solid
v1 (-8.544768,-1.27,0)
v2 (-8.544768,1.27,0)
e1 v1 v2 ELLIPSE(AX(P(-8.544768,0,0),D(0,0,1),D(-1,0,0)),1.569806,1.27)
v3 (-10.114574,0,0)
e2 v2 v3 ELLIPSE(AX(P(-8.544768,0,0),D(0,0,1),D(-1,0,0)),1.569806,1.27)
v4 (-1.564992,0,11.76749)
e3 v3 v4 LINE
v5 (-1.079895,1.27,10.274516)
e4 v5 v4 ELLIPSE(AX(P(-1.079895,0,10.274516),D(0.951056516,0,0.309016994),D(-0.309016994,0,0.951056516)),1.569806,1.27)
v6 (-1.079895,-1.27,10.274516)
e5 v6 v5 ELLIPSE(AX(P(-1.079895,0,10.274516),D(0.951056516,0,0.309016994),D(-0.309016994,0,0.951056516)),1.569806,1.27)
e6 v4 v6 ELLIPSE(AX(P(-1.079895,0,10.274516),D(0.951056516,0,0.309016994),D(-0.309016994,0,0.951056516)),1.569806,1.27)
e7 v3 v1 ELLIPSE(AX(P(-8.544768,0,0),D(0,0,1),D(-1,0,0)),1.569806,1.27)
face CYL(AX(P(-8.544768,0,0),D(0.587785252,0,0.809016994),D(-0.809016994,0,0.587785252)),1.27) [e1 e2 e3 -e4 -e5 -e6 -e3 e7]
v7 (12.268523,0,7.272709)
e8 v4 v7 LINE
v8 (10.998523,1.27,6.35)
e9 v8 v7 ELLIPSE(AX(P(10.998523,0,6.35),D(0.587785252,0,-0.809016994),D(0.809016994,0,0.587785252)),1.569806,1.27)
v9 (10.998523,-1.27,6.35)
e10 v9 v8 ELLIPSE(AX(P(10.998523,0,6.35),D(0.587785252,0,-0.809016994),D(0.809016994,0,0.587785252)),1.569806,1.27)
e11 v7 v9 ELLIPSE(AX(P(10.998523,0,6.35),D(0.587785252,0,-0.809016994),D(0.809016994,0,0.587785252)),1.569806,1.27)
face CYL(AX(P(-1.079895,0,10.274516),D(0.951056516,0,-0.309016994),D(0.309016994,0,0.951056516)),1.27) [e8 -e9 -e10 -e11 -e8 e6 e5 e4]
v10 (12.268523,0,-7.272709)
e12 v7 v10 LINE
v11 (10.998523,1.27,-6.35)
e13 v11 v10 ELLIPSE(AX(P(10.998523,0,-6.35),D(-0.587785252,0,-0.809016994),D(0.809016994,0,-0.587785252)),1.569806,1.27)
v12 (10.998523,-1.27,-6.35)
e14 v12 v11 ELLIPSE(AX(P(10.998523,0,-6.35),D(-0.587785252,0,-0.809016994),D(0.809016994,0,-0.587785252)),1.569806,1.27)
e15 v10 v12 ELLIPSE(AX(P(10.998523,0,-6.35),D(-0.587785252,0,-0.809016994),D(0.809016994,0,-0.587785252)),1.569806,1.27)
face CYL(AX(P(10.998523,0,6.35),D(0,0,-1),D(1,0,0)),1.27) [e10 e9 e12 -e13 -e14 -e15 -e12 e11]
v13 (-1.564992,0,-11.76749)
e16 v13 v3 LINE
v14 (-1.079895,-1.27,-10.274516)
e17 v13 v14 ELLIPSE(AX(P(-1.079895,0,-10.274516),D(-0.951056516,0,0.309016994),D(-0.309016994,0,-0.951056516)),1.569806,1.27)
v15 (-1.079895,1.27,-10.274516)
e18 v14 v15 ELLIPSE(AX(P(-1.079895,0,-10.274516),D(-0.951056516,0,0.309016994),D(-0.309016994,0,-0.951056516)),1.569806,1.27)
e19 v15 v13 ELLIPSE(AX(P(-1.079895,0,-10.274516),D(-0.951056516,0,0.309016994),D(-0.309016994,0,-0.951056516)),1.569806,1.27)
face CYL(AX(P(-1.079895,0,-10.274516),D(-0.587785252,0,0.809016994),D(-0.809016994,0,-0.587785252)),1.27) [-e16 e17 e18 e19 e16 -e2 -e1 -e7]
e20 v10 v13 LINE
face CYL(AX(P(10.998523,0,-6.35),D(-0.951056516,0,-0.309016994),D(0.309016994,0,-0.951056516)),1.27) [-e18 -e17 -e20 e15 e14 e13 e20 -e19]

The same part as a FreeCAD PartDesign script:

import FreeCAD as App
import Part
import Sketcher
Q = App.Units.Quantity


def add_polygon(sketch, points):
    """Adds a closed chain of lines whose ends are joined by coincident constraints."""
    first, n = sketch.GeometryCount, len(points)
    for a, b in zip(points, points[1:] + points[:1]):
        sketch.addGeometry(Part.LineSegment(App.Vector(*a, 0), App.Vector(*b, 0)), False)
    for i in range(n):
        sketch.addConstraint(Sketcher.Constraint("Coincident", first + i, 2, first + (i + 1) % n, 1))

doc = App.newDocument("Part")
body = doc.addObject("PartDesign::Body", "Body")

# Sketch on XY plane
sketch1 = doc.addObject("Sketcher::SketchObject", "Sketch")
body.addObject(sketch1)
sketch1.AttachmentSupport = (doc.XY_Plane, [""])
sketch1.MapMode = "FlatFace"
sketch1.addGeometry(Part.Circle(App.Vector(11, 0, 0), App.Vector(0, 0, 1), 1.3), False)
sketch1.addConstraint(Sketcher.Constraint("PointOnObject", 0, 3, -1))
sketch1.addConstraint(Sketcher.Constraint("Diameter", 0, Q("0.1 in")))
sketch1.addConstraint(Sketcher.Constraint("DistanceX", -1, 1, 0, 3, 10.998523))

# Sketch on XZ plane
sketch2 = doc.addObject("Sketcher::SketchObject", "Sketch001")
body.addObject(sketch2)
sketch2.AttachmentSupport = (doc.XZ_Plane, [""])
sketch2.MapMode = "FlatFace"
add_polygon(sketch2, [(11, 6), (11, -6), (-1, -10), (-9, 0), (-1, 10)])  # lines 0-4
sketch2.addConstraint(Sketcher.Constraint("Vertical", 0))
sketch2.addConstraint(Sketcher.Constraint("Symmetric", 1, 2, 3, 2, -1))
sketch2.addConstraint(Sketcher.Constraint("PointOnObject", 2, 2, -1))
sketch2.addConstraint(Sketcher.Constraint("Equal", 1, 2))
sketch2.addConstraint(Sketcher.Constraint("Equal", 3, 4))
sketch2.addConstraint(Sketcher.Constraint("DistanceY", 0, 2, 0, 1, Q("0.5 in")))
sketch2.addConstraint(Sketcher.Constraint("Angle", 1, Q("-162 deg")))
sketch2.addConstraint(Sketcher.Constraint("Angle", 2, Q("126 deg")))
sketch2.addConstraint(Sketcher.Constraint("DistanceX", -1, 1, 0, 2, 10.998523))
doc.recompute()

additivepipe = doc.addObject("PartDesign::AdditivePipe", "AdditivePipe")
body.addObject(additivepipe)
additivepipe.Profile = sketch1
additivepipe.Spine = (sketch2, ["Edge1", "Edge2", "Edge3", "Edge4", "Edge5"])
additivepipe.Transition = "Right corner"

doc.recompute()
